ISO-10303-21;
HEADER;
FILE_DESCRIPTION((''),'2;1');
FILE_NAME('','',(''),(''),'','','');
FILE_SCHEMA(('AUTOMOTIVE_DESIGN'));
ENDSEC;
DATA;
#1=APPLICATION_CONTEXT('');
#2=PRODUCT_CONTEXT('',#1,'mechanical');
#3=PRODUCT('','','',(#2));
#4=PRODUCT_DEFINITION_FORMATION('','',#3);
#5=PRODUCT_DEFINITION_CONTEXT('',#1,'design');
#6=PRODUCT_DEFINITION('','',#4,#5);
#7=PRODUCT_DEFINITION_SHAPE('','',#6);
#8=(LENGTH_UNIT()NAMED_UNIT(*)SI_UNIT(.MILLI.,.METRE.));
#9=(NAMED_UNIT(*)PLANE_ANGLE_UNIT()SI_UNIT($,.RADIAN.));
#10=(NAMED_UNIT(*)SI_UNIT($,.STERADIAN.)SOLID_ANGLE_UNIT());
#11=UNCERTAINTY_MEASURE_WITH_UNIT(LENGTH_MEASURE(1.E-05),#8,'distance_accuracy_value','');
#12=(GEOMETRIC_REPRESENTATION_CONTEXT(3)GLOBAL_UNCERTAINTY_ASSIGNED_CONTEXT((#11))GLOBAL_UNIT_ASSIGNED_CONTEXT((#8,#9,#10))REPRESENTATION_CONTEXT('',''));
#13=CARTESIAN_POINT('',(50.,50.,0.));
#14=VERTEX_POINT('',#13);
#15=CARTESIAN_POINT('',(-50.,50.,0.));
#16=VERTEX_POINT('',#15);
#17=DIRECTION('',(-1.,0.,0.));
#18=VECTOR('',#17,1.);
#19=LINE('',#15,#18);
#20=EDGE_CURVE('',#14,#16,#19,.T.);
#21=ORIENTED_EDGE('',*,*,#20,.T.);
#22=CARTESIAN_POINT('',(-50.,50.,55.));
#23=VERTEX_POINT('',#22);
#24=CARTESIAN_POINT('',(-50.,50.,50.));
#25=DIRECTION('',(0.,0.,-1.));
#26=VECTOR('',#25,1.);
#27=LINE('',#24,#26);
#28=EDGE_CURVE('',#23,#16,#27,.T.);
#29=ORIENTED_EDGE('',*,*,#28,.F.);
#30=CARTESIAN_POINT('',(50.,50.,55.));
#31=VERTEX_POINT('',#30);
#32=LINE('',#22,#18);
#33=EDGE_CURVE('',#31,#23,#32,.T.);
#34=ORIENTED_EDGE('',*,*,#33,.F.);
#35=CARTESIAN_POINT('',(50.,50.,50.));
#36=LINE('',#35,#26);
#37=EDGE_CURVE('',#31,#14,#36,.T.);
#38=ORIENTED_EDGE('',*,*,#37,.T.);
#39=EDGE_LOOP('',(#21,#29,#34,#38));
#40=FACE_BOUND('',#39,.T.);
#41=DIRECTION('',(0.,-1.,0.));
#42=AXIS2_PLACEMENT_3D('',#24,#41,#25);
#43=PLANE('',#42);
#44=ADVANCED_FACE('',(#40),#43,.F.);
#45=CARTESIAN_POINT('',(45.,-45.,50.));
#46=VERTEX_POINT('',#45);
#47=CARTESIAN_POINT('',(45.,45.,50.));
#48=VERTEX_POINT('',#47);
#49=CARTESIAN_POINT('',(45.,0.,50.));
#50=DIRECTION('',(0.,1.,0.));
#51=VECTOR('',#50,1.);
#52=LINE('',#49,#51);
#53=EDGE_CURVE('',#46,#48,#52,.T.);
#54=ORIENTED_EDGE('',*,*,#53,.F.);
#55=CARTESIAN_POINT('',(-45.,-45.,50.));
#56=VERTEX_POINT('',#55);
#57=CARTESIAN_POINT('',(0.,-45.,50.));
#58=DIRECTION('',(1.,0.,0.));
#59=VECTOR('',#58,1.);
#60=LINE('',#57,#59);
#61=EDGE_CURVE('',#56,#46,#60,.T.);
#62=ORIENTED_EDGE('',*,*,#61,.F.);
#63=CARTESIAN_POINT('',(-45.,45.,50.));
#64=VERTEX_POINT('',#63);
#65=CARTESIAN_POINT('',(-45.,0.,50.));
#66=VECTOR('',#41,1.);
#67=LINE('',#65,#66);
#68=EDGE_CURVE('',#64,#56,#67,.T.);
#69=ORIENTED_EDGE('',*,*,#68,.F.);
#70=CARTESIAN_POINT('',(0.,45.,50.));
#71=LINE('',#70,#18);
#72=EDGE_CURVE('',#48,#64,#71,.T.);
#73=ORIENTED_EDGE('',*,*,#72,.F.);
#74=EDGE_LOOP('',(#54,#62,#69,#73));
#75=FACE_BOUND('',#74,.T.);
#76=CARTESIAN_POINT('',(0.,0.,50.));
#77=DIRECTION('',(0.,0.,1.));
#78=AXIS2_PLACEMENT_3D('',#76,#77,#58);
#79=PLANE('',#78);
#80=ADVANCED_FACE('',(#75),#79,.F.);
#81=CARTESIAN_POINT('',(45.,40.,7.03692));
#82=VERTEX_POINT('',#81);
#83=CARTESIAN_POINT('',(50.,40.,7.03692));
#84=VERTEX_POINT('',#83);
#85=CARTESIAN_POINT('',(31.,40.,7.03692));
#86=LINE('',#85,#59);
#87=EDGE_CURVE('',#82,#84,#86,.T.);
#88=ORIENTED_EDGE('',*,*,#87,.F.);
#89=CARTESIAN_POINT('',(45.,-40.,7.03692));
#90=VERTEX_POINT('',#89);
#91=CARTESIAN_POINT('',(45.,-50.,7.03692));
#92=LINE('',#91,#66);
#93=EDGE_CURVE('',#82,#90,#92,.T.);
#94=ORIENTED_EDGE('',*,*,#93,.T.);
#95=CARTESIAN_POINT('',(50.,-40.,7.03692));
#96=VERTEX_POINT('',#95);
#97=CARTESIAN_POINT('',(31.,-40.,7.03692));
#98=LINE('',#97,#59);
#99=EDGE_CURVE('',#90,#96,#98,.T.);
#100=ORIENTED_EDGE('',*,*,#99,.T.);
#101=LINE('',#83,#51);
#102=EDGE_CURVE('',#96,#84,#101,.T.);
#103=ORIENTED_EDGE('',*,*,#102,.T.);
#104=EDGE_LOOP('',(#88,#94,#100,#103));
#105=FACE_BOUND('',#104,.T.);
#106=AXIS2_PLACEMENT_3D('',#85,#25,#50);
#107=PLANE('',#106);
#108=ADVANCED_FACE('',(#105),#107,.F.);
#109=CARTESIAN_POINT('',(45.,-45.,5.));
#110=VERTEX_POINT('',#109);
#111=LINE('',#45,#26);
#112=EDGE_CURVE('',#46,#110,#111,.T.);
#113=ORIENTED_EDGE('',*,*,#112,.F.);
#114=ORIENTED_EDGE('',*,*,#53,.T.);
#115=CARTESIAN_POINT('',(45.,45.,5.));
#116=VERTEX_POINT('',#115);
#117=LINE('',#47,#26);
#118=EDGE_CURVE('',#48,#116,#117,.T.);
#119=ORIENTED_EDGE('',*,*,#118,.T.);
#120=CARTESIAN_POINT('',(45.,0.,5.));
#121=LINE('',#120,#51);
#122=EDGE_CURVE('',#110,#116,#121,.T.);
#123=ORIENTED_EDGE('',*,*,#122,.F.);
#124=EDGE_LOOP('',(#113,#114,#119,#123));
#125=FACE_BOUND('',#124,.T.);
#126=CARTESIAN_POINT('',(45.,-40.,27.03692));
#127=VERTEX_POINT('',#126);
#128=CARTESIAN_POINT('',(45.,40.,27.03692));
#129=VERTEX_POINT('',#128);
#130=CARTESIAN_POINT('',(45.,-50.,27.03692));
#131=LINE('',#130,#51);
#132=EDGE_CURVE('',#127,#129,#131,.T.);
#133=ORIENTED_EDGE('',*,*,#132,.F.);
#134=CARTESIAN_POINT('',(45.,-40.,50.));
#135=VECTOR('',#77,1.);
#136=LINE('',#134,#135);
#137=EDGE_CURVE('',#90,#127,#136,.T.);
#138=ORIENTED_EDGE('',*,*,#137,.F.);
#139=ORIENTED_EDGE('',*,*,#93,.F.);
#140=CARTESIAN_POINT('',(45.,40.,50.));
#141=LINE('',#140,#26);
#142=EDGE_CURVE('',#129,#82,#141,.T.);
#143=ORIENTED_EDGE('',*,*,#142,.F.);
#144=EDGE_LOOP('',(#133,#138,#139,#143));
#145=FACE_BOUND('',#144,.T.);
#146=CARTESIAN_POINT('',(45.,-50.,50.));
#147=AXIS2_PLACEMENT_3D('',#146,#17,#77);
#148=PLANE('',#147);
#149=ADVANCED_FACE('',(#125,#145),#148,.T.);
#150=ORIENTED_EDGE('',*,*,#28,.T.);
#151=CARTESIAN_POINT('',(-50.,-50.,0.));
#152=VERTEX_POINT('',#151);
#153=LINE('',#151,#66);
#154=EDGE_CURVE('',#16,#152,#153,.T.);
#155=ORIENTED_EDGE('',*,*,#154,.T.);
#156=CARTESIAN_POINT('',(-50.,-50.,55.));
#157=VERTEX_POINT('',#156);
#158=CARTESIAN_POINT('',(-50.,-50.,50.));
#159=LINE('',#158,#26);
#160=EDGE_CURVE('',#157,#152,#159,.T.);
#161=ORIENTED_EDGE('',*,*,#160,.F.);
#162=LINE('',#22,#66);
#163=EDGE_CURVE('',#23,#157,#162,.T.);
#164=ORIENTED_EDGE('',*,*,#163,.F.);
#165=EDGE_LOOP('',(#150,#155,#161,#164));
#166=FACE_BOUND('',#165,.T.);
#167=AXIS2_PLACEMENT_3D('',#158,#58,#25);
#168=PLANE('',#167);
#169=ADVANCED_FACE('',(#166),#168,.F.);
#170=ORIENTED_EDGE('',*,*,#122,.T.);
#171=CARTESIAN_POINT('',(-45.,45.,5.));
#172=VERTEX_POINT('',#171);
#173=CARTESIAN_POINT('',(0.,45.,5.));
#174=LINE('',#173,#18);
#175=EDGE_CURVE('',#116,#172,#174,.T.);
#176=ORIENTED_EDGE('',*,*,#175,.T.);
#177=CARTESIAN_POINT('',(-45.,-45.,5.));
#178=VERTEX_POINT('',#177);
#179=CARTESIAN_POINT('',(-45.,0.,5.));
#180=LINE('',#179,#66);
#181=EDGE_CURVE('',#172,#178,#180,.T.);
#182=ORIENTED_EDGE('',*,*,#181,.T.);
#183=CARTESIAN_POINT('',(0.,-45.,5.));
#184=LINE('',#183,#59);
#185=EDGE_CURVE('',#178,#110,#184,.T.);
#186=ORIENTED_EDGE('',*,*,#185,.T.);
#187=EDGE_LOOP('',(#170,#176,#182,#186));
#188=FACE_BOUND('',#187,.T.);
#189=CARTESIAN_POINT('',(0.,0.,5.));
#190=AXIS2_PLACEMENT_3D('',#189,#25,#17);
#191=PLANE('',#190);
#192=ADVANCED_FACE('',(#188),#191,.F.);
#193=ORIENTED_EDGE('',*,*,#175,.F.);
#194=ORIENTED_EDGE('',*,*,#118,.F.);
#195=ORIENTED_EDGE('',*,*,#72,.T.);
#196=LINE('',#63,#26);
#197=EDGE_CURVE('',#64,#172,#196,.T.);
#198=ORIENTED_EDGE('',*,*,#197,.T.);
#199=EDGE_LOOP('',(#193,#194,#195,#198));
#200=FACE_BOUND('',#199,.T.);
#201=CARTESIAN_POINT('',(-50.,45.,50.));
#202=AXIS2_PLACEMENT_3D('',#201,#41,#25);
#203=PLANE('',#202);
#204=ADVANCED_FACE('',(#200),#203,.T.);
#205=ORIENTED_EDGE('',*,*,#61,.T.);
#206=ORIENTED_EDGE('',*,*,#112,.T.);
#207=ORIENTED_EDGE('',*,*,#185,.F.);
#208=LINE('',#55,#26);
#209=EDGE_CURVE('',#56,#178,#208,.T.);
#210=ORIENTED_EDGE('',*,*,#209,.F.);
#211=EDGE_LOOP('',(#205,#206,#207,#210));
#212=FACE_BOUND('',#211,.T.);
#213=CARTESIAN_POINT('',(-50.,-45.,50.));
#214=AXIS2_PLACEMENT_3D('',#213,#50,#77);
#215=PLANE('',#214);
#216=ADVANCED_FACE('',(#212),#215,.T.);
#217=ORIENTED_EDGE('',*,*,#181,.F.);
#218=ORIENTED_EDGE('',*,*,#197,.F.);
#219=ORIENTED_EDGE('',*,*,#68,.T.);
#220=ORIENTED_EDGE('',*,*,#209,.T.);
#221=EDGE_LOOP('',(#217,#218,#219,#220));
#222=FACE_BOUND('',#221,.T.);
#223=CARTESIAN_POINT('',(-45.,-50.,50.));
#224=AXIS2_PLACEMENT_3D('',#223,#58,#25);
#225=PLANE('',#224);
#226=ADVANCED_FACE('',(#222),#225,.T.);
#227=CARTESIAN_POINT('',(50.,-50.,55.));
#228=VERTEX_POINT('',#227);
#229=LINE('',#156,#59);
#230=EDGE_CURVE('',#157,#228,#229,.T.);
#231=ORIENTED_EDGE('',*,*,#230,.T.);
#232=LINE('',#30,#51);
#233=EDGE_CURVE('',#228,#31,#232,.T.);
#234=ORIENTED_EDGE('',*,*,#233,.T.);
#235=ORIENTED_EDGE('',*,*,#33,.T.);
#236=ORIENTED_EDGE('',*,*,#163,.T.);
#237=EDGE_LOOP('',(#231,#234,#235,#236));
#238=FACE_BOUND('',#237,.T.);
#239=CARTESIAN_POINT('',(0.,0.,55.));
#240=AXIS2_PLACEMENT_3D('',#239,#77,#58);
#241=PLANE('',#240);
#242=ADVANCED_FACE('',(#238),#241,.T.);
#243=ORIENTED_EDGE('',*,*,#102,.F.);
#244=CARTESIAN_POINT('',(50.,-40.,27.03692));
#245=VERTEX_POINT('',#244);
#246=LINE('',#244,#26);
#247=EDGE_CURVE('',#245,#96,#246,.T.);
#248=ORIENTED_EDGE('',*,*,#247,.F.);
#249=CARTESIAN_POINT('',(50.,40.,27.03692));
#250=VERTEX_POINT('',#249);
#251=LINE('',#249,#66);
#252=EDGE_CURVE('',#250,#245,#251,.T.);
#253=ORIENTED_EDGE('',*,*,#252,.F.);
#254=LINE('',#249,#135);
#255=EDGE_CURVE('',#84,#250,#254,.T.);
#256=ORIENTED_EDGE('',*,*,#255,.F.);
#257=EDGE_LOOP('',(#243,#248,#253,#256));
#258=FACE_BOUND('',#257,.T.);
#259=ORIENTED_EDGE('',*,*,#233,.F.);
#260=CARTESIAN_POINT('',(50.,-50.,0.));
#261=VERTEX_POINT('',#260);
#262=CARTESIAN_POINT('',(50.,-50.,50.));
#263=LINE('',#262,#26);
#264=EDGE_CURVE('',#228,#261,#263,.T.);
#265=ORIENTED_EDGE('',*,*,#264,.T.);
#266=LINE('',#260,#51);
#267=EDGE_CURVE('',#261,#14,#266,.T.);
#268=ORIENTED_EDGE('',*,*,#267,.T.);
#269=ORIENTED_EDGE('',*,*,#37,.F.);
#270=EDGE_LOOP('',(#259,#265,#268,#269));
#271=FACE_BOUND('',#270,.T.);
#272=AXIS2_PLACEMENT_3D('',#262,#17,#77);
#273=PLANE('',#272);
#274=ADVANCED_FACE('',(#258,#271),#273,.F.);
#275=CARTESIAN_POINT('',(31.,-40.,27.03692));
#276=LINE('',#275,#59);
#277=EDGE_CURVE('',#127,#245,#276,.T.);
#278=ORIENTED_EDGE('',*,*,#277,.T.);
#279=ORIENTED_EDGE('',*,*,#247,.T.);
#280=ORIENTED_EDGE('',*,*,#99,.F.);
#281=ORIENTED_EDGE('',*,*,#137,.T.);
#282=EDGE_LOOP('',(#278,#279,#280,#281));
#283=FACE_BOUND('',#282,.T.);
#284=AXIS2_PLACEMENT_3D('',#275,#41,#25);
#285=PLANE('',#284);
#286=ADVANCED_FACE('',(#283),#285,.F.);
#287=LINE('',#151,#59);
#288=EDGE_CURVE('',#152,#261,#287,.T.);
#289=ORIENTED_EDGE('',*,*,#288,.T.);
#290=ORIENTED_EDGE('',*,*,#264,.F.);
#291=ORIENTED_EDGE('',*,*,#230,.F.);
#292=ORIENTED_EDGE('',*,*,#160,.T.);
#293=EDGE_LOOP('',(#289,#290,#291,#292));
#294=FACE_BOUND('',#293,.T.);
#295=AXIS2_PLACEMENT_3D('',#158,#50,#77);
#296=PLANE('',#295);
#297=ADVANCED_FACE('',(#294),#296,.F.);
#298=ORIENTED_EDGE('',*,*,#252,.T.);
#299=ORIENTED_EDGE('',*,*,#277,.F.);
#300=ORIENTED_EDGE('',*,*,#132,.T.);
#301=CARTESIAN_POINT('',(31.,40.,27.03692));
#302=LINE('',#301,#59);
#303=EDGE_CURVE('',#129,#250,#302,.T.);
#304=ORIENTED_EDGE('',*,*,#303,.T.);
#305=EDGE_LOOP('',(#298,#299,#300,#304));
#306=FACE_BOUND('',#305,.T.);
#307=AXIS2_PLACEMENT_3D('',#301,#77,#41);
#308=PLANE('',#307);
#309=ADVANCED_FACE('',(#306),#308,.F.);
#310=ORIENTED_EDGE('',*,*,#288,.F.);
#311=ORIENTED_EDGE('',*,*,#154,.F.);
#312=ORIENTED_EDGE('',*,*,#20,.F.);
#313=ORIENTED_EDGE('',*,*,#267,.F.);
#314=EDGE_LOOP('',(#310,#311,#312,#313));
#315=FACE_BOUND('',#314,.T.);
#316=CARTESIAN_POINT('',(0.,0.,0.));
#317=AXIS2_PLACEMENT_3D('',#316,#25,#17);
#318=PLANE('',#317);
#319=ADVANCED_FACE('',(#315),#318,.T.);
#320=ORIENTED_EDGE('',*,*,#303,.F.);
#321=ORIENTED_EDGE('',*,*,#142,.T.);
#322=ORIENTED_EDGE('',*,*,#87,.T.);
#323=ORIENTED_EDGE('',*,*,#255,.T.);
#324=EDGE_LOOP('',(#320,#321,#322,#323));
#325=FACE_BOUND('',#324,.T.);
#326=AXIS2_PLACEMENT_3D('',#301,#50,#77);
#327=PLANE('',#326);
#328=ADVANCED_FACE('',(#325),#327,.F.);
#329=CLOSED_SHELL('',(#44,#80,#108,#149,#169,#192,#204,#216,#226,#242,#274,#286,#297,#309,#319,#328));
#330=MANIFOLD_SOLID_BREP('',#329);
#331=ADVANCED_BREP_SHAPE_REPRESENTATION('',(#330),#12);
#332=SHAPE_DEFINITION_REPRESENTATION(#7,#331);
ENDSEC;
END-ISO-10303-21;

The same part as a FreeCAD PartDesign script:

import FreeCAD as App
import Part
import Sketcher


def faces_at(feature, points):
    """Names of the faces that lie closest to the given points."""
    faces = feature.Shape.Faces
    near = lambda p: min(range(len(faces)), key=lambda i: faces[i].distToShape(Part.Vertex(*p))[0])
    return sorted({f"Face{near(p) + 1}" for p in points})


def add_polygon(sketch, points):
    """Adds a closed chain of lines whose ends are joined by coincident constraints."""
    first, n = sketch.GeometryCount, len(points)
    for a, b in zip(points, points[1:] + points[:1]):
        sketch.addGeometry(Part.LineSegment(App.Vector(*a, 0), App.Vector(*b, 0)), False)
    for i in range(n):
        sketch.addConstraint(Sketcher.Constraint("Coincident", first + i, 2, first + (i + 1) % n, 1))

doc = App.newDocument("Part")
params = doc.addObject("Spreadsheet::Sheet", "Params")
for row, (alias, value) in enumerate([
    ("sketch1_width", "100 mm"),
    ("pad1_length", "50 mm"),
    ("thickness_wall", "5 mm"),
    ("sketch2_width", "80 mm"),
    ("sketch2_height", "20 mm"),
    ("pocket1_length", "19 mm"),
    ("sketch3_width", "100 mm"),
    ("pad2_length", "5 mm"),
], start=1):
    params.set(f"A{row}", alias)
    params.set(f"B{row}", "=" + value)
    params.setAlias(f"B{row}", alias)

body = doc.addObject("PartDesign::Body", "Body")

sketch1 = doc.addObject("Sketcher::SketchObject", "Sketch")
body.addObject(sketch1)
sketch1.AttachmentSupport = (doc.XY_Plane, [""])
sketch1.MapMode = "FlatFace"
add_polygon(sketch1, [(-50, 50), (-50, -50), (50, -50), (50, 50)])
sketch1.addConstraint([
    Sketcher.Constraint("Vertical", 0),
    Sketcher.Constraint("Horizontal", 1),
    Sketcher.Constraint("Vertical", 2),
    Sketcher.Constraint("Horizontal", 3),
    Sketcher.Constraint("Symmetric", 0, 2, 2, 2, -1, 1),
    Sketcher.Constraint("Equal", 3, 0),
    Sketcher.Constraint("DistanceX", 1, 1, 1, 2, 100.0),
])
sketch1.setExpression("Constraints[10]", "Params.sketch1_width")
pad1 = doc.addObject("PartDesign::Pad", "Pad")
body.addObject(pad1)
pad1.Profile = sketch1
pad1.setExpression("Length", "Params.pad1_length")
doc.recompute()

thickness = doc.addObject("PartDesign::Thickness", "Thickness")
body.addObject(thickness)
thickness.Base = (pad1, faces_at(pad1, [(0, 0, 50)]))
thickness.setExpression("Value", "Params.thickness_wall")
thickness.Reversed = True
thickness.Join = "Intersection"

sketch2 = doc.addObject("Sketcher::SketchObject", "Sketch001")
body.addObject(sketch2)
sketch2.AttachmentSupport = (doc.YZ_Plane, [""])
sketch2.MapMode = "FlatFace"
sketch2.AttachmentOffset = App.Placement(App.Vector(0, 0, 50), App.Rotation())
add_polygon(sketch2, [(40, 27.03692), (-40, 27.03692), (-40, 7.03692), (40, 7.03692)])
sketch2.addConstraint([
    Sketcher.Constraint("Horizontal", 0),
    Sketcher.Constraint("Vertical", 1),
    Sketcher.Constraint("Horizontal", 2),
    Sketcher.Constraint("Vertical", 3),
    Sketcher.Constraint("DistanceX", 0, 2, 0, 1, 80.0),
    Sketcher.Constraint("DistanceY", 1, 2, 1, 1, 20.0),
    Sketcher.Constraint("DistanceX", 0, 2, -1, 1, 40.0),
    Sketcher.Constraint("DistanceY", -1, 1, 0, 2, 27.03692),
])
sketch2.setExpression("Constraints[8]", "Params.sketch2_width")
sketch2.setExpression("Constraints[9]", "Params.sketch2_height")
pocket1 = doc.addObject("PartDesign::Pocket", "Pocket")
body.addObject(pocket1)
pocket1.Profile = sketch2
pocket1.setExpression("Length", "Params.pocket1_length")

sketch3 = doc.addObject("Sketcher::SketchObject", "Sketch002")
body.addObject(sketch3)
sketch3.AttachmentSupport = (doc.XY_Plane, [""])
sketch3.MapMode = "FlatFace"
sketch3.AttachmentOffset = App.Placement(App.Vector(0, 0, 50), App.Rotation())
add_polygon(sketch3, [(-50, 50), (-50, -50), (50, -50), (50, 50)])
sketch3.addConstraint([
    Sketcher.Constraint("Vertical", 0),
    Sketcher.Constraint("Horizontal", 1),
    Sketcher.Constraint("Vertical", 2),
    Sketcher.Constraint("Horizontal", 3),
    Sketcher.Constraint("Symmetric", 0, 2, 2, 2, -1, 1),
    Sketcher.Constraint("Equal", 3, 0),
    Sketcher.Constraint("DistanceX", 1, 1, 1, 2, 100.0),
])
sketch3.setExpression("Constraints[10]", "Params.sketch3_width")
pad2 = doc.addObject("PartDesign::Pad", "Pad001")
body.addObject(pad2)
pad2.Profile = sketch3
pad2.setExpression("Length", "Params.pad2_length")

doc.recompute()
